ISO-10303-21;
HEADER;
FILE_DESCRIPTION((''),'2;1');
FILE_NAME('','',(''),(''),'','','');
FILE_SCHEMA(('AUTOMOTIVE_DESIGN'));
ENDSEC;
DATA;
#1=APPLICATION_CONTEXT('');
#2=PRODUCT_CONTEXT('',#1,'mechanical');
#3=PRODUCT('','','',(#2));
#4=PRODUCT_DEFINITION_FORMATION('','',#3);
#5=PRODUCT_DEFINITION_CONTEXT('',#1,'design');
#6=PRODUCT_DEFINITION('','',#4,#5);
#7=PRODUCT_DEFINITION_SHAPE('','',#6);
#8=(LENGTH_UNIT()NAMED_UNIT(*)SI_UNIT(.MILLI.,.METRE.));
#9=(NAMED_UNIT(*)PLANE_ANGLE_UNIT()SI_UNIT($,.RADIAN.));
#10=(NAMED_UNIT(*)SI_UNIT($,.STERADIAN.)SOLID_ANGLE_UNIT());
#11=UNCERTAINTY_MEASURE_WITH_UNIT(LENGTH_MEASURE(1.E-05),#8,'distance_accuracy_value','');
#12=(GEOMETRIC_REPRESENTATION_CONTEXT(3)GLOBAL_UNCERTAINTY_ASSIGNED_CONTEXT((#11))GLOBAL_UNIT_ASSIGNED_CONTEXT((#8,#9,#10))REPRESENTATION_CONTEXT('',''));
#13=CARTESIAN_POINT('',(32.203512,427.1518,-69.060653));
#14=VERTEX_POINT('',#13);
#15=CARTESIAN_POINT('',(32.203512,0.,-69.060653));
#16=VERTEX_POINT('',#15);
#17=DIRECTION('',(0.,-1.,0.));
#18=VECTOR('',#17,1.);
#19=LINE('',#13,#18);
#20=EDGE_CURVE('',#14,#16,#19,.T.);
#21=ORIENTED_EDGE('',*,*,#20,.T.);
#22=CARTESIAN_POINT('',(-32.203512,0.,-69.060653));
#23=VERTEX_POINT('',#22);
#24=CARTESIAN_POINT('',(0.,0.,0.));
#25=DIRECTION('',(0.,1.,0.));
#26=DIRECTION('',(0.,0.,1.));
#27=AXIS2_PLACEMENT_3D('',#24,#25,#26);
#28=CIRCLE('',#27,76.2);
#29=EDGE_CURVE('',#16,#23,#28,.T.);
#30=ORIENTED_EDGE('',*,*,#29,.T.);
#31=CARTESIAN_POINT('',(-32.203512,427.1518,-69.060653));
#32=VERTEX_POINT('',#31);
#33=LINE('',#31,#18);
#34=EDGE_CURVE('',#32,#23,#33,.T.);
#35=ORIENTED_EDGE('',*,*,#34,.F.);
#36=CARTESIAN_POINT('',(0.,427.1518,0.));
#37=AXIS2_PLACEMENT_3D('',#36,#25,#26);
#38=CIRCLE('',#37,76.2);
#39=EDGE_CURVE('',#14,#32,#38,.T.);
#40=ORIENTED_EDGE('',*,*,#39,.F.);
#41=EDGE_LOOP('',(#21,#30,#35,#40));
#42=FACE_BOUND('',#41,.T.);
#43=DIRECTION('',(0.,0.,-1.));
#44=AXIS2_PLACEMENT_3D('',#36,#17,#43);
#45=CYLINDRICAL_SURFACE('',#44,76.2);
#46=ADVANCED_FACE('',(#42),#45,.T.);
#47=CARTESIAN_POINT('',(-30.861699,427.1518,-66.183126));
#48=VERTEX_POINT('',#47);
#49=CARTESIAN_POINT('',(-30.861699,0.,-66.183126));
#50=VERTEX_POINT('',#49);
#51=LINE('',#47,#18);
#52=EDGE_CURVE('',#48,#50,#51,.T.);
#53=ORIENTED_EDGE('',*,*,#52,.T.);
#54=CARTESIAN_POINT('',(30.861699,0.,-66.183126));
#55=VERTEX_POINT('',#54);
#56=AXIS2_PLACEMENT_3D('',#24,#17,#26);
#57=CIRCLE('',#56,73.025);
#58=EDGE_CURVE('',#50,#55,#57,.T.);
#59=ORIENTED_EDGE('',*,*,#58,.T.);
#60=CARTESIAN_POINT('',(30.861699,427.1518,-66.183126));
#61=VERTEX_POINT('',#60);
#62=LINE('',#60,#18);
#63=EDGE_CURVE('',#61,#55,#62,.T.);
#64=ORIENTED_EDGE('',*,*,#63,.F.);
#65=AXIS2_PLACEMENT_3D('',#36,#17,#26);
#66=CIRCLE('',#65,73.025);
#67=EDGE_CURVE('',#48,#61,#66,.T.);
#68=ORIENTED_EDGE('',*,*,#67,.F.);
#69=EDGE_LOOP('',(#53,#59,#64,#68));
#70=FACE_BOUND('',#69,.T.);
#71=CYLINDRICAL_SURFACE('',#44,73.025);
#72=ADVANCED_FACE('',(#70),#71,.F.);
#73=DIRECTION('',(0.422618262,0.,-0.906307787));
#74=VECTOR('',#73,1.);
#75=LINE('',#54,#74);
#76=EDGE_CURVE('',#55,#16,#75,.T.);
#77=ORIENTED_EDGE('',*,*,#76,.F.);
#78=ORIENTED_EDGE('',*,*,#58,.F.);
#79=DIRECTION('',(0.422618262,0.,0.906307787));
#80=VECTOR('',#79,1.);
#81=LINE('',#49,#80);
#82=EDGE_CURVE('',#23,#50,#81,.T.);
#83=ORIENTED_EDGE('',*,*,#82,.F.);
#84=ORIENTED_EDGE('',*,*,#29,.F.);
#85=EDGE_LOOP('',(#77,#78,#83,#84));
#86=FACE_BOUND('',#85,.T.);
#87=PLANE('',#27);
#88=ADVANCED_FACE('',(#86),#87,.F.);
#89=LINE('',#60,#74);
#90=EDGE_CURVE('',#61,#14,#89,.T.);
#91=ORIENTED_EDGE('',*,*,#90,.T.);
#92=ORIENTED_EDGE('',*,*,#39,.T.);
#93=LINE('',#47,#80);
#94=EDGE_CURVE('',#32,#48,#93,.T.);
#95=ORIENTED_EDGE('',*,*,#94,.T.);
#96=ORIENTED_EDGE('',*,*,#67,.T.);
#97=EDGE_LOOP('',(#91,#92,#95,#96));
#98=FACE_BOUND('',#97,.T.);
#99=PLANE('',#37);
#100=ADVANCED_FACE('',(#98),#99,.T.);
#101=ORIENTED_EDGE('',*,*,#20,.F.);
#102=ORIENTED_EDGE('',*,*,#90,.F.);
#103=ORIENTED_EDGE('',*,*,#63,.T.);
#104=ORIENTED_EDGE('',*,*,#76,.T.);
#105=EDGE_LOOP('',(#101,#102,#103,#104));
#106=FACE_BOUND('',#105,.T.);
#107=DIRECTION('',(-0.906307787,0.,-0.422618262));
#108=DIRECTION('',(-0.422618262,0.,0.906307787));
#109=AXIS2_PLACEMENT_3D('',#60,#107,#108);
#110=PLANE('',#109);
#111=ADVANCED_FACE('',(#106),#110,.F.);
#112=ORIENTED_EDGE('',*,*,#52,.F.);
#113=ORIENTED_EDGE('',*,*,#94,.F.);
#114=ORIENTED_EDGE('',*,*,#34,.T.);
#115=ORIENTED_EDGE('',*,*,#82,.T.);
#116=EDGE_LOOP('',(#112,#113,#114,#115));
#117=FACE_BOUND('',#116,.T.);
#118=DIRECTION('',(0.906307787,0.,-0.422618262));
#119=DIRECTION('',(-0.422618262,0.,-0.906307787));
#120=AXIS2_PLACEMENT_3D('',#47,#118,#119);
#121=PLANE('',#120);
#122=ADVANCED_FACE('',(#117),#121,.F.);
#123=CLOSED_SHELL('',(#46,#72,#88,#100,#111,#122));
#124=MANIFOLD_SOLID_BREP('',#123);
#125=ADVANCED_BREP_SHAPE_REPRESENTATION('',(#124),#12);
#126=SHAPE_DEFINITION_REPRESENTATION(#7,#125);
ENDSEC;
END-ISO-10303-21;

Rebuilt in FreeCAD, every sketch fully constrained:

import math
import FreeCAD as App
import Part
import Sketcher

V = App.Vector
Q = App.Units.Quantity

doc = App.newDocument("Part")
body = doc.addObject("PartDesign::Body", "Body")

# Sketch on XZ plane
sketch1 = body.newObject("Sketcher::SketchObject", "Sketch")
sketch1.AttachmentSupport = (doc.getObject("XZ_Plane"), [""])
sketch1.MapMode = "FlatFace"
sketch1.addGeometry(Part.LineSegment(V(-32.2, -69.1, 0), V(-30.9, -66.2, 0)), False)
sketch1.addGeometry(Part.ArcOfCircle(Part.Circle(V(0, 0, 0), V(0, 0, 1), 73), math.radians(-115), math.radians(-65)), False)
sketch1.addGeometry(Part.LineSegment(V(30.9, -66.2, 0), V(32.2, -69.1, 0)), False)
sketch1.addGeometry(Part.ArcOfCircle(Part.Circle(V(0, 0, 0), V(0, 0, 1), 76.2), math.radians(-115), math.radians(-65)), False)
sketch1.addConstraint(Sketcher.Constraint("Coincident", 0, 2, 1, 1))
sketch1.addConstraint(Sketcher.Constraint("Coincident", 1, 2, 2, 1))
sketch1.addConstraint(Sketcher.Constraint("Coincident", 2, 2, 3, 2))
sketch1.addConstraint(Sketcher.Constraint("Coincident", 3, 1, 0, 1))
sketch1.addConstraint(Sketcher.Constraint("Coincident", 1, 3, -1, 1))
sketch1.addConstraint(Sketcher.Constraint("Coincident", 3, 3, -1, 1))
sketch1.addConstraint(Sketcher.Constraint("Horizontal", 0, 2, 1, 2))
sketch1.addConstraint(Sketcher.Constraint("Horizontal", 2, 2, 3, 1))
sketch1.addConstraint(Sketcher.Constraint("Radius", 3, Q("3 in")))
sketch1.addConstraint(Sketcher.Constraint("Angle", 0, Q("65 deg")))
sketch1.addConstraint(Sketcher.Constraint("Radius", 1, Q("2.875 in")))
sketch1.addConstraint(Sketcher.Constraint("DistanceX", 0, 2, -1, 1, Q("30.861699 mm")))
pad1 = body.newObject("PartDesign::Pad", "Pad")
pad1.Profile = sketch1
pad1.Length = Q("16.817 in")
pad1.Reversed = True

doc.recompute()
